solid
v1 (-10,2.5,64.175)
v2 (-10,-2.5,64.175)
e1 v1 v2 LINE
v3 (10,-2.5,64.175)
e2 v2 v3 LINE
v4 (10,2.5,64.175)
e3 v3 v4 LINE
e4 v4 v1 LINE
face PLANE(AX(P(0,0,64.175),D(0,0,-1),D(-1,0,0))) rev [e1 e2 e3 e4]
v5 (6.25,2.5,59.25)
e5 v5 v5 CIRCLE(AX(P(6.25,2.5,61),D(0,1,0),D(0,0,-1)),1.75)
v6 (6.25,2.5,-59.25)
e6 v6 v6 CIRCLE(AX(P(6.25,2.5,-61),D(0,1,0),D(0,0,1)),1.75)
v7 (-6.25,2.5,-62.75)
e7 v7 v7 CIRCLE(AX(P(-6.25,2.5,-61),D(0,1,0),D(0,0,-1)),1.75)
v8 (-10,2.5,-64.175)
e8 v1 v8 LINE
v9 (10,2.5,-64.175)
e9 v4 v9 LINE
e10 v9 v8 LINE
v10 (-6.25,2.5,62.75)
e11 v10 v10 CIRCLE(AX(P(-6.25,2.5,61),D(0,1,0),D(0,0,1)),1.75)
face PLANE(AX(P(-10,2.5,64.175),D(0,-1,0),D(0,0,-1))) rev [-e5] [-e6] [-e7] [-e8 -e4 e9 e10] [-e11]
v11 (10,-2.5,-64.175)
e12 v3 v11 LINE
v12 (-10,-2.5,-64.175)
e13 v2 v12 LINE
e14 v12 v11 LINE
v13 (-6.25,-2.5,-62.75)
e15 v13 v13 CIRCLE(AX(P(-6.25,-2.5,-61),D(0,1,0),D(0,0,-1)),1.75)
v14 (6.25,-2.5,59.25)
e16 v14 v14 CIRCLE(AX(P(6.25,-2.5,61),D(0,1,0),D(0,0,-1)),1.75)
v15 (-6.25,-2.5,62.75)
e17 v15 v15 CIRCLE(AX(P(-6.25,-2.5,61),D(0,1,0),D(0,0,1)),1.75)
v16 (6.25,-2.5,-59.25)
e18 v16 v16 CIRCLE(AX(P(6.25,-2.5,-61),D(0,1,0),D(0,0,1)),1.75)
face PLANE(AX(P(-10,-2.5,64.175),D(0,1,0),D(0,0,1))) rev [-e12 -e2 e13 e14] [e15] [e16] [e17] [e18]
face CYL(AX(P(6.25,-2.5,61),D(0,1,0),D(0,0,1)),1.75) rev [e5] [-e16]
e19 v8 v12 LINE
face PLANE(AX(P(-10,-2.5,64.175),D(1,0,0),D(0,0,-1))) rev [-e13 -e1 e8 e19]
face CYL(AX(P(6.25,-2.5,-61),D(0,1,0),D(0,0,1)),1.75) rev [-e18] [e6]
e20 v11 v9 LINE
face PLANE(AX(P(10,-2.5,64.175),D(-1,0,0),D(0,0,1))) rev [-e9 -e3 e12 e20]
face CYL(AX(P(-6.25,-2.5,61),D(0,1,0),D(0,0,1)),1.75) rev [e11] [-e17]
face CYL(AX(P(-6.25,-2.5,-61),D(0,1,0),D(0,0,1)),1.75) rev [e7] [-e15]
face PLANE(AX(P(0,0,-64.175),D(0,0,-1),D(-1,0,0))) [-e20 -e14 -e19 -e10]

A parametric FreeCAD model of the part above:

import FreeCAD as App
import Part
import Sketcher
Q = App.Units.Quantity

doc = App.newDocument("Part")
body = doc.addObject("PartDesign::Body", "Body")

sketch1 = doc.addObject("Sketcher::SketchObject", "Sketch")
body.addObject(sketch1)
sketch1.AttachmentSupport = (doc.XY_Plane, [""])
sketch1.MapMode = "FlatFace"
sketch1.addGeometry([
    Part.LineSegment(App.Vector(-10, 2, 0), App.Vector(-10, -2, 0)),
    Part.LineSegment(App.Vector(-10, -2, 0), App.Vector(10, -2, 0)),
    Part.LineSegment(App.Vector(10, -2, 0), App.Vector(10, 2, 0)),
    Part.LineSegment(App.Vector(10, 2, 0), App.Vector(-10, 2, 0)),
], False)
sketch1.addConstraint([
    Sketcher.Constraint("Coincident", 0, 2, 1, 1),
    Sketcher.Constraint("Coincident", 1, 2, 2, 1),
    Sketcher.Constraint("Coincident", 2, 2, 3, 1),
    Sketcher.Constraint("Coincident", 3, 2, 0, 1),
    Sketcher.Constraint("Vertical", 0),
    Sketcher.Constraint("Horizontal", 1),
    Sketcher.Constraint("Vertical", 2),
    Sketcher.Constraint("Horizontal", 3),
    Sketcher.Constraint("Symmetric", 0, 2, 2, 2, -1, 1),
    Sketcher.Constraint("DistanceX", 1, 1, 1, 2, Q("20 mm")),
    Sketcher.Constraint("DistanceY", 0, 2, 0, 1, Q("5 mm")),
])
pad1 = doc.addObject("PartDesign::Pad", "Pad")
body.addObject(pad1)
pad1.Profile = sketch1
pad1.Length = 128.35
pad1.Midplane = True

sketch2 = doc.addObject("Sketcher::SketchObject", "Sketch001")
body.addObject(sketch2)
sketch2.AttachmentSupport = (doc.XZ_Plane, [""])
sketch2.MapMode = "FlatFace"
sketch2.AttachmentOffset = App.Placement(App.Vector(0, 0, -2.5), App.Rotation())
sketch2.addGeometry([
    Part.Circle(App.Vector(-6.2, 61, 0), App.Vector(0, 0, 1), 1.8),
    Part.Circle(App.Vector(6.2, 61, 0), App.Vector(0, 0, 1), 1.8),
    Part.Circle(App.Vector(6.2, -61, 0), App.Vector(0, 0, 1), 1.8),
    Part.Circle(App.Vector(-6.2, -61, 0), App.Vector(0, 0, 1), 1.8),
], False)
sketch2.addConstraint([
    Sketcher.Constraint("Equal", 0, 1),
    Sketcher.Constraint("Equal", 1, 2),
    Sketcher.Constraint("Equal", 2, 3),
    Sketcher.Constraint("Symmetric", 0, 3, 2, 3, -1, 1),
    Sketcher.Constraint("Symmetric", 1, 3, 3, 3, -1, 1),
    Sketcher.Constraint("Symmetric", 0, 3, 1, 3, -2),
    Sketcher.Constraint("Diameter", 0, Q("3.5 mm")),
    Sketcher.Constraint("DistanceY", -1, 1, 0, 3, Q("61 mm")),
    Sketcher.Constraint("DistanceX", 0, 3, 1, 3, Q("12.5 mm")),
])
pocket1 = doc.addObject("PartDesign::Pocket", "Pocket")
body.addObject(pocket1)
pocket1.Profile = sketch2
pocket1.Type = "ThroughAll"
pocket1.Reversed = True

doc.recompute()
